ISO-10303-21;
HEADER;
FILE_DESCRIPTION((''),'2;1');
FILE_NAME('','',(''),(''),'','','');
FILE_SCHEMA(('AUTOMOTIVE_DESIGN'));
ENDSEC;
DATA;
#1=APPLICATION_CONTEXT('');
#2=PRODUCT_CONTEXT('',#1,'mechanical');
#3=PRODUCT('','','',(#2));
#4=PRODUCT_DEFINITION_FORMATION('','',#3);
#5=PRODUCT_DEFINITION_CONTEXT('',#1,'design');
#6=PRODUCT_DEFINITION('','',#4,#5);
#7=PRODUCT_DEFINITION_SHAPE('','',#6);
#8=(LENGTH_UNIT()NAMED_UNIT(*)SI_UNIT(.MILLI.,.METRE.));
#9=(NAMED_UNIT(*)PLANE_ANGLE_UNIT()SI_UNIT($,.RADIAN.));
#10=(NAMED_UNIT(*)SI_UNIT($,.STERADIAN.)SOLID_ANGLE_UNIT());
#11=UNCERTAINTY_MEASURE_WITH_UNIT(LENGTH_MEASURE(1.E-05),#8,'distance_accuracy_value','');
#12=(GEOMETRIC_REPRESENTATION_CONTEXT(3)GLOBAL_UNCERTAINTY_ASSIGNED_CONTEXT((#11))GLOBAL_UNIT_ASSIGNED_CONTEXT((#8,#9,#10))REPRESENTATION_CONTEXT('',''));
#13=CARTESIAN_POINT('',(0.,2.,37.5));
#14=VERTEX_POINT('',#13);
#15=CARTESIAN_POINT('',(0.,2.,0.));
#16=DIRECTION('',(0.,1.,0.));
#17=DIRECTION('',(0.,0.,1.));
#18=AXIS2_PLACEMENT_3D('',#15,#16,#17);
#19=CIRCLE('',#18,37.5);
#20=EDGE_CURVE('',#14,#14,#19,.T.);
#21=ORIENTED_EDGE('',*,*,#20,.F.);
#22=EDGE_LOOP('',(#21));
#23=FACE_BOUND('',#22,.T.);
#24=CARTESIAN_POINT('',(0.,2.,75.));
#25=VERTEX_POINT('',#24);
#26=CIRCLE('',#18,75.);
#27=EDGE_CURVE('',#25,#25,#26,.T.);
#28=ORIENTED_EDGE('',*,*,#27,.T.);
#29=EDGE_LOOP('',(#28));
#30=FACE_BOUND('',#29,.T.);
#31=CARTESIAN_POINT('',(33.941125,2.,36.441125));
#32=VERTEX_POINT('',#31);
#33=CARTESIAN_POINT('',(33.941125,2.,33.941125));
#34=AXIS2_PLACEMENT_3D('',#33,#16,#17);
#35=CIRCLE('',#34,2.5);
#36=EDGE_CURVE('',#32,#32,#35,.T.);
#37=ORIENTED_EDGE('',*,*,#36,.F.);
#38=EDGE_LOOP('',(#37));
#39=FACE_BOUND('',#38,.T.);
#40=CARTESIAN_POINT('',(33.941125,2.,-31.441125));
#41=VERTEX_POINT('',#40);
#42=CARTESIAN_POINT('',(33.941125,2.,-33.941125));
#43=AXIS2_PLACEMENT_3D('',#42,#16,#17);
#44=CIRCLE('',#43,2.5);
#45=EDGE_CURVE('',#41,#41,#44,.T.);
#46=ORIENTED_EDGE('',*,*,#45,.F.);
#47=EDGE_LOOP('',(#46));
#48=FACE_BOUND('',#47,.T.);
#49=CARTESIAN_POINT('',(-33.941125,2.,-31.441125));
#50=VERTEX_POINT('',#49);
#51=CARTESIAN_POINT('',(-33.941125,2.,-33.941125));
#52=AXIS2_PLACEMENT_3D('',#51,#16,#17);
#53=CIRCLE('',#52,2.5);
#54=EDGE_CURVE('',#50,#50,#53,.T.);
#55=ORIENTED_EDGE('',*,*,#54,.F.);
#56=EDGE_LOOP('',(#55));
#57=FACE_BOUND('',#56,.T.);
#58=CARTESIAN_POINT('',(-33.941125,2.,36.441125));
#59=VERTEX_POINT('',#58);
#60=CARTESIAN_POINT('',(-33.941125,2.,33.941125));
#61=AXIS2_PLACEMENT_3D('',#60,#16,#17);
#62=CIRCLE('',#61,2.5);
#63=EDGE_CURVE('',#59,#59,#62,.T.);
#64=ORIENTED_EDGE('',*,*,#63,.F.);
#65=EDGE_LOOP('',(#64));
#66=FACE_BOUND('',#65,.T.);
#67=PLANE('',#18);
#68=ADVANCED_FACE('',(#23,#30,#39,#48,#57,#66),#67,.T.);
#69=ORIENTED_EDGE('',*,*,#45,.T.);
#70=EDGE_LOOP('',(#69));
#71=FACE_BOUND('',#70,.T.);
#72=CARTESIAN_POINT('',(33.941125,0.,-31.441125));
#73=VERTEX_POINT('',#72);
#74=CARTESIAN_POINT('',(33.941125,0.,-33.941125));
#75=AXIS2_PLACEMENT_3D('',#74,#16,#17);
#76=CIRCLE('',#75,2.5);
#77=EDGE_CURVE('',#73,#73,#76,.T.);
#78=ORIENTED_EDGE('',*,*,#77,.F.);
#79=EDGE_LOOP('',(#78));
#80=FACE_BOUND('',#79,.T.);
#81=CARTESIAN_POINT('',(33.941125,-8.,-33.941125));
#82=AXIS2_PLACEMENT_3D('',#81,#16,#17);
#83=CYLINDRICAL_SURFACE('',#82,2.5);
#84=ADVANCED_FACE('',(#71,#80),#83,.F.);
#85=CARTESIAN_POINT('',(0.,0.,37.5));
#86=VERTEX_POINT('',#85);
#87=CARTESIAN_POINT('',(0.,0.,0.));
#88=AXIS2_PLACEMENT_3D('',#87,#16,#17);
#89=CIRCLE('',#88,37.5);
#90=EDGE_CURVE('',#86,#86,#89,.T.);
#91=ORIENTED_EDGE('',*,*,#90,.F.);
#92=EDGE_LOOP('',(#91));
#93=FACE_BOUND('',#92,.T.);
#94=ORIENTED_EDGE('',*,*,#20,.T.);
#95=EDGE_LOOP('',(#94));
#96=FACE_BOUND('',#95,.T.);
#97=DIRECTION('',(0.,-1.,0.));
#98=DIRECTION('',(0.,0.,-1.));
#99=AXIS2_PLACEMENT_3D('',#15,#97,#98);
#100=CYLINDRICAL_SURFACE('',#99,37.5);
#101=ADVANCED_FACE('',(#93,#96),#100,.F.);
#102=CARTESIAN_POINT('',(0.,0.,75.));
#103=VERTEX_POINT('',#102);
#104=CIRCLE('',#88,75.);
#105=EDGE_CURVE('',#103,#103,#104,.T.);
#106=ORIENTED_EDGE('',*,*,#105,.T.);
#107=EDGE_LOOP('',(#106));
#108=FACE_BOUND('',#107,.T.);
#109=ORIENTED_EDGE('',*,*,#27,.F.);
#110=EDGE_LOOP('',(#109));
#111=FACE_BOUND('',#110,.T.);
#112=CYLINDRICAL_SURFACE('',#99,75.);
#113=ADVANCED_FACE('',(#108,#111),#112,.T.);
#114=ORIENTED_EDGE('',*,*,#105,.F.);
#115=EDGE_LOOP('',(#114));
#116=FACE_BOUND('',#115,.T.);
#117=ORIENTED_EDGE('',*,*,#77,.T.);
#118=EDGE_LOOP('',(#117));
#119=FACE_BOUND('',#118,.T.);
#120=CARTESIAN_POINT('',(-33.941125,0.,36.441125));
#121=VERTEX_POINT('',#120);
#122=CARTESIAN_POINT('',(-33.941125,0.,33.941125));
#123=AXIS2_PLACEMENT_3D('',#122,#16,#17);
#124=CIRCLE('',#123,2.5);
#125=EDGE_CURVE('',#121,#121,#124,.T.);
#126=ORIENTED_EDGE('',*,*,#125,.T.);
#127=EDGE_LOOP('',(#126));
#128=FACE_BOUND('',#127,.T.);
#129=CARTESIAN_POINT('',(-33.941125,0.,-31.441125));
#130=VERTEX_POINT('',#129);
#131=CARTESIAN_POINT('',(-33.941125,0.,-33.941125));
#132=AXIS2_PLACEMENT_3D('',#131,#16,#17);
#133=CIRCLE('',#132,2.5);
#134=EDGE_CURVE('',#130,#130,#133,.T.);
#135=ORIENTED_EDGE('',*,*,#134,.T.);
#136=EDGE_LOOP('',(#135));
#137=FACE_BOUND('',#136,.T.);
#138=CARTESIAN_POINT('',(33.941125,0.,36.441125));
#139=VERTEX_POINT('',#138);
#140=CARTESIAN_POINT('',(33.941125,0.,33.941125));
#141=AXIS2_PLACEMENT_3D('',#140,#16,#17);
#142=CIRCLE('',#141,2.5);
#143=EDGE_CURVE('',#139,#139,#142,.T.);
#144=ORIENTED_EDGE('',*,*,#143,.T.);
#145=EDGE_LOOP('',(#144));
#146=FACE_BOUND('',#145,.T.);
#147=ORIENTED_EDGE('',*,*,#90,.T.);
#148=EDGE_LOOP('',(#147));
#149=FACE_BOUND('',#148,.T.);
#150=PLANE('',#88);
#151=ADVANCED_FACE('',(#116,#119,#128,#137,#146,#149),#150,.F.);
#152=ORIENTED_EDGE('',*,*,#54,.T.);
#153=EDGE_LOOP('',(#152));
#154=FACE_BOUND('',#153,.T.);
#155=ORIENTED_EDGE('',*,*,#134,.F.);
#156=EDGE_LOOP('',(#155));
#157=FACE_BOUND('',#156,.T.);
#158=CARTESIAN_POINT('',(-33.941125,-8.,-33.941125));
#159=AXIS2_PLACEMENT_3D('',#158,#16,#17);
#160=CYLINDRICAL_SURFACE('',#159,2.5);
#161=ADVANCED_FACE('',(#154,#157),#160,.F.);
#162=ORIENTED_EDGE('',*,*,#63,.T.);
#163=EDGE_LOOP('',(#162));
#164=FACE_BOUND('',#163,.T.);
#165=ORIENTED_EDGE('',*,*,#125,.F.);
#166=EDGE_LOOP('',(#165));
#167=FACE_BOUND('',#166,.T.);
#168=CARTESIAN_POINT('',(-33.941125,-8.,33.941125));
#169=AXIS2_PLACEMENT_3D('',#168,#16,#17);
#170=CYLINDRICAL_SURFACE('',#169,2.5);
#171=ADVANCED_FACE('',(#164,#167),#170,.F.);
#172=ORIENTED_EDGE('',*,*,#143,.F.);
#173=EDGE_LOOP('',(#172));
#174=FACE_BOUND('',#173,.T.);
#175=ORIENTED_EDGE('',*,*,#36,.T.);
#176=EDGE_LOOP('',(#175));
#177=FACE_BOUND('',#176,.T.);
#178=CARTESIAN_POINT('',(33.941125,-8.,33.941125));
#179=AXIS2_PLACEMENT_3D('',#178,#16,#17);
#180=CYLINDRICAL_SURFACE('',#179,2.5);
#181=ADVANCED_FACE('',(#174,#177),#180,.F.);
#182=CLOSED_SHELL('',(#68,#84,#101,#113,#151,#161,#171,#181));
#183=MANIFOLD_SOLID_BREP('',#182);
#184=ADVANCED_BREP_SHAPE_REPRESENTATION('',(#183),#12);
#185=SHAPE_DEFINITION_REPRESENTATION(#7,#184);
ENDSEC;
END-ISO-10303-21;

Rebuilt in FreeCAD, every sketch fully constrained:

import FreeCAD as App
import Part
import Sketcher
Q = App.Units.Quantity

doc = App.newDocument("Part")
body = doc.addObject("PartDesign::Body", "Body")

sketch1 = body.newObject("Sketcher::SketchObject", "Sketch")
sketch1.AttachmentSupport = (doc.getObject("XZ_Plane"), [""])
sketch1.MapMode = "FlatFace"
sketch1.addGeometry(Part.Circle(App.Vector(0, 0, 0), App.Vector(0, 0, 1), 75), False)
sketch1.addGeometry(Part.Circle(App.Vector(0, 0, 0), App.Vector(0, 0, 1), 37.5), False)
sketch1.addConstraint(Sketcher.Constraint("Coincident", 0, 3, -1, 1))
sketch1.addConstraint(Sketcher.Constraint("Coincident", 1, 3, -1, 1))
sketch1.addConstraint(Sketcher.Constraint("Diameter", 0, Q("150 mm")))
sketch1.addConstraint(Sketcher.Constraint("Diameter", 1, Q("75 mm")))
pad1 = body.newObject("PartDesign::Pad", "Pad")
pad1.Profile = sketch1
pad1.Length = 2
pad1.Reversed = True

sketch2 = body.newObject("Sketcher::SketchObject", "Sketch001")
sketch2.AttachmentSupport = (doc.getObject("XZ_Plane"), [""])
sketch2.MapMode = "FlatFace"
sketch2.AttachmentOffset = App.Placement(App.Vector(0, 0, -2), App.Rotation())
sketch2.addGeometry(Part.Circle(App.Vector(-33.941125, -33.941125, 0), App.Vector(0, 0, 1), 2.5), False)
sketch2.addGeometry(Part.Circle(App.Vector(33.941125, -33.941125, 0), App.Vector(0, 0, 1), 2.5), False)
sketch2.addGeometry(Part.Circle(App.Vector(33.941125, 33.941125, 0), App.Vector(0, 0, 1), 2.5), False)
sketch2.addGeometry(Part.Circle(App.Vector(-33.941125, 33.941125, 0), App.Vector(0, 0, 1), 2.5), False)
sketch2.addConstraint(Sketcher.Constraint("Equal", 0, 1))
sketch2.addConstraint(Sketcher.Constraint("Equal", 1, 2))
sketch2.addConstraint(Sketcher.Constraint("Equal", 2, 3))
sketch2.addConstraint(Sketcher.Constraint("Symmetric", 0, 3, 2, 3, -1, 1))
sketch2.addConstraint(Sketcher.Constraint("Symmetric", 1, 3, 3, 3, -1, 1))
sketch2.addConstraint(Sketcher.Constraint("Symmetric", 0, 3, 1, 3, -2))
sketch2.addConstraint(Sketcher.Constraint("Diameter", 0, Q("5 mm")))
sketch2.addConstraint(Sketcher.Constraint("DistanceX", 0, 3, 1, 3, Q("67.882251 mm")))
sketch2.addConstraint(Sketcher.Constraint("DistanceY", 1, 3, 2, 3, Q("67.882251 mm")))
pocket1 = body.newObject("PartDesign::Pocket", "Pocket")
pocket1.Profile = sketch2
pocket1.Length = 10
pocket1.Reversed = True

doc.recompute()
